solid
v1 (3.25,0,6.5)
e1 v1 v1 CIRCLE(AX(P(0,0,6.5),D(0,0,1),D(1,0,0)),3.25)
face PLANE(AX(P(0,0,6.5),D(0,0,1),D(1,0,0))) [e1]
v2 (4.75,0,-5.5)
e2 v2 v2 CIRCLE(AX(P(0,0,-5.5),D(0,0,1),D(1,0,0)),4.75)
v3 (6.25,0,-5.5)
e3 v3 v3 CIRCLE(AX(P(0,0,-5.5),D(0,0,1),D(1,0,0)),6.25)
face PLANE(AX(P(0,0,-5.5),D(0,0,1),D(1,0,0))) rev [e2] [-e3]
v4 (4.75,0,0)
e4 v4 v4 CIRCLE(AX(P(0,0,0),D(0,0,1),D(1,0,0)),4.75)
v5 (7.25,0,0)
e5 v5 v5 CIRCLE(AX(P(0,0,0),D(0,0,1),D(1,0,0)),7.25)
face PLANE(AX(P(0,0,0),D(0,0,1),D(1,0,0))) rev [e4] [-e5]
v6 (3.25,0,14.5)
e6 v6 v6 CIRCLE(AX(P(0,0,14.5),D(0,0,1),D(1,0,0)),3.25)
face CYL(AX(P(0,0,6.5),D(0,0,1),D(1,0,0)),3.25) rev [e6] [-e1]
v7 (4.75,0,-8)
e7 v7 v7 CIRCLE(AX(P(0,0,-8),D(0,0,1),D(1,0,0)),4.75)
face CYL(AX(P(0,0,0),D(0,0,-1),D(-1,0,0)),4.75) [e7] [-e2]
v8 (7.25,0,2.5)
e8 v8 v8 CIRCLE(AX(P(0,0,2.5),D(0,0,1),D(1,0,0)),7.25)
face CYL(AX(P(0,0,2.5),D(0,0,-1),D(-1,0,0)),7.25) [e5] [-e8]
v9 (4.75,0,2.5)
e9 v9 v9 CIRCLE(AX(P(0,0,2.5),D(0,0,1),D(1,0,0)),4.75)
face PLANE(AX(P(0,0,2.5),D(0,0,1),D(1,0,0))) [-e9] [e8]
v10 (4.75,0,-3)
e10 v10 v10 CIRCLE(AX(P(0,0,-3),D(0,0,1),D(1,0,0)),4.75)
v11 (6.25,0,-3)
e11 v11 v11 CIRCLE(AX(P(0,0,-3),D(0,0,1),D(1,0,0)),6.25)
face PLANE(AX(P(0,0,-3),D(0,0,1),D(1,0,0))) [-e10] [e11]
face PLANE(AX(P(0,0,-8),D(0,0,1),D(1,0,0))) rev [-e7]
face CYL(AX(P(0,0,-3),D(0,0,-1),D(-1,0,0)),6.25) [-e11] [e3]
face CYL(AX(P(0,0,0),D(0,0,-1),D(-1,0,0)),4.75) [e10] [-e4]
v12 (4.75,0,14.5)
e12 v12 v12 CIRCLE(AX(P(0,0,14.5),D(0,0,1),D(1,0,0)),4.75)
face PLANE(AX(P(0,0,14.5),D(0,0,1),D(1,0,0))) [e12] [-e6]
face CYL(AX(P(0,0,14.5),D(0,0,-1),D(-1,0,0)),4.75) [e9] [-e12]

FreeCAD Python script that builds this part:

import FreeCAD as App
import Part
import Sketcher

doc = App.newDocument("Part")
params = doc.addObject("Spreadsheet::Sheet", "Params")
for row, (alias, value) in enumerate([
    ("sketch1_diameter", "14.5 mm"),
    ("pad1_length", "2.5 mm"),
    ("sketch2_diameter", "9.5 mm"),
    ("pad2_length", "12 mm"),
    ("sketch3_diameter", "9.5 mm"),
    ("pad3_length", "8 mm"),
    ("sketch4_diameter", "12.5 mm"),
    ("pad4_length", "2.5 mm"),
    ("sketch5_diameter", "6.5 mm"),
    ("pocket1_length", "8 mm"),
], start=1):
    params.set(f"A{row}", alias)
    params.set(f"B{row}", "=" + value)
    params.setAlias(f"B{row}", alias)

body = doc.addObject("PartDesign::Body", "Body")

sketch1 = body.newObject("Sketcher::SketchObject", "Sketch")
sketch1.AttachmentSupport = (doc.getObject("XY_Plane"), [""])
sketch1.MapMode = "FlatFace"
sketch1.addGeometry(Part.Circle(App.Vector(0, 0, 0), App.Vector(0, 0, 1), 7.25), False)
sketch1.addConstraint(Sketcher.Constraint("Coincident", 0, 3, -1, 1))
sketch1.addConstraint(Sketcher.Constraint("Diameter", 0, 14.5))
sketch1.setExpression("Constraints[1]", "Params.sketch1_diameter")
pad1 = body.newObject("PartDesign::Pad", "Pad")
pad1.Profile = sketch1
pad1.setExpression("Length", "Params.pad1_length")

sketch2 = body.newObject("Sketcher::SketchObject", "Sketch001")
sketch2.AttachmentSupport = (doc.getObject("XY_Plane"), [""])
sketch2.MapMode = "FlatFace"
sketch2.AttachmentOffset = App.Placement(App.Vector(0, 0, 2.5), App.Rotation())
sketch2.addGeometry(Part.Circle(App.Vector(0, 0, 0), App.Vector(0, 0, 1), 4.75), False)
sketch2.addConstraint(Sketcher.Constraint("Coincident", 0, 3, -1, 1))
sketch2.addConstraint(Sketcher.Constraint("Diameter", 0, 9.5))
sketch2.setExpression("Constraints[1]", "Params.sketch2_diameter")
pad2 = body.newObject("PartDesign::Pad", "Pad001")
pad2.Profile = sketch2
pad2.setExpression("Length", "Params.pad2_length")

sketch3 = body.newObject("Sketcher::SketchObject", "Sketch002")
sketch3.AttachmentSupport = (doc.getObject("XY_Plane"), [""])
sketch3.MapMode = "FlatFace"
sketch3.AttachmentOffset = App.Placement(App.Vector(0, 0, -8), App.Rotation())
sketch3.addGeometry(Part.Circle(App.Vector(0, 0, 0), App.Vector(0, 0, 1), 4.75), False)
sketch3.addConstraint(Sketcher.Constraint("Coincident", 0, 3, -1, 1))
sketch3.addConstraint(Sketcher.Constraint("Diameter", 0, 9.5))
sketch3.setExpression("Constraints[1]", "Params.sketch3_diameter")
pad3 = body.newObject("PartDesign::Pad", "Pad002")
pad3.Profile = sketch3
pad3.setExpression("Length", "Params.pad3_length")

sketch4 = body.newObject("Sketcher::SketchObject", "Sketch003")
sketch4.AttachmentSupport = (doc.getObject("XY_Plane"), [""])
sketch4.MapMode = "FlatFace"
sketch4.AttachmentOffset = App.Placement(App.Vector(0, 0, -5.5), App.Rotation())
sketch4.addGeometry(Part.Circle(App.Vector(0, 0, 0), App.Vector(0, 0, 1), 6.25), False)
sketch4.addConstraint(Sketcher.Constraint("Coincident", 0, 3, -1, 1))
sketch4.addConstraint(Sketcher.Constraint("Diameter", 0, 12.5))
sketch4.setExpression("Constraints[1]", "Params.sketch4_diameter")
pad4 = body.newObject("PartDesign::Pad", "Pad003")
pad4.Profile = sketch4
pad4.setExpression("Length", "Params.pad4_length")

sketch5 = body.newObject("Sketcher::SketchObject", "Sketch004")
sketch5.AttachmentSupport = (doc.getObject("XY_Plane"), [""])
sketch5.MapMode = "FlatFace"
sketch5.AttachmentOffset = App.Placement(App.Vector(0, 0, 14.5), App.Rotation())
sketch5.addGeometry(Part.Circle(App.Vector(0, 0, 0), App.Vector(0, 0, 1), 3.25), False)
sketch5.addConstraint(Sketcher.Constraint("Coincident", 0, 3, -1, 1))
sketch5.addConstraint(Sketcher.Constraint("Diameter", 0, 6.5))
sketch5.setExpression("Constraints[1]", "Params.sketch5_diameter")
pocket1 = body.newObject("PartDesign::Pocket", "Pocket")
pocket1.Profile = sketch5
pocket1.setExpression("Length", "Params.pocket1_length")

doc.recompute()
